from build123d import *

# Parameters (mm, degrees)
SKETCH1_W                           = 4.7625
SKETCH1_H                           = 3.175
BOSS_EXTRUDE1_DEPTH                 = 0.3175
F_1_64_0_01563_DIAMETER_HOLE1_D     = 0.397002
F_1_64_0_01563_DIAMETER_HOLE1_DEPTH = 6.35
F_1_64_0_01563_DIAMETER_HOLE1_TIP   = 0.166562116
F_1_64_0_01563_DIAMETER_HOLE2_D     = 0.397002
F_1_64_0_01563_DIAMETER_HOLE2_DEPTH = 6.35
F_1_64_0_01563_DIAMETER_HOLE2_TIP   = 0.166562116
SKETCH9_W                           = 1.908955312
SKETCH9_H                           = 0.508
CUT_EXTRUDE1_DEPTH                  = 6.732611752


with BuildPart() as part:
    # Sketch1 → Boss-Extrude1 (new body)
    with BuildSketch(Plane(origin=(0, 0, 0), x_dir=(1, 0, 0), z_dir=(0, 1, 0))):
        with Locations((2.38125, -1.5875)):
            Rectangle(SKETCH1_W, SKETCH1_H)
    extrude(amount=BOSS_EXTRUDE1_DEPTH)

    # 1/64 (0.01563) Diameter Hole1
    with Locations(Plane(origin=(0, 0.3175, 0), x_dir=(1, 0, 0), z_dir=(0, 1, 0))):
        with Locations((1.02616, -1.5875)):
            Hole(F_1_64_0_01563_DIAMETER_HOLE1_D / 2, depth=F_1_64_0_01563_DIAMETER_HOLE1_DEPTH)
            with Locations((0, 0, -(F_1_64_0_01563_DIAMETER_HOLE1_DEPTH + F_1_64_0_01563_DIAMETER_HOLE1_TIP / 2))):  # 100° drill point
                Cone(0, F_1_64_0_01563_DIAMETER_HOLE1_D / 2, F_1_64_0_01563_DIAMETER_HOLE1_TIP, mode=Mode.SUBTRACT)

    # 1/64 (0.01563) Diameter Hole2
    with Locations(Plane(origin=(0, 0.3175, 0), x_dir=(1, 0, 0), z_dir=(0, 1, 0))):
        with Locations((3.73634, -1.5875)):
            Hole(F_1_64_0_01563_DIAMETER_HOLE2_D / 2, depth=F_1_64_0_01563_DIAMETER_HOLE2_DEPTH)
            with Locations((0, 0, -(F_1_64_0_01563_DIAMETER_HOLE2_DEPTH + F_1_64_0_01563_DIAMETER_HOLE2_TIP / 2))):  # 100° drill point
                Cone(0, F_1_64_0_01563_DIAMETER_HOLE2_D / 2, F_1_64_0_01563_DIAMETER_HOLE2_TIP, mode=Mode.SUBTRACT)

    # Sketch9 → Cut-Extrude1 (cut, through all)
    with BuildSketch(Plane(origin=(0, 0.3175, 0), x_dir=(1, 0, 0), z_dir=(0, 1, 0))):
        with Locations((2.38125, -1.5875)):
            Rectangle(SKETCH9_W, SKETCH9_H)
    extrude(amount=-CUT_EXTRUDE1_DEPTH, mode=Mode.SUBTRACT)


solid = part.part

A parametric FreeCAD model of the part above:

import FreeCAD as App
import Part
import Sketcher

V = App.Vector
Q = App.Units.Quantity

doc = App.newDocument("Part")
body = doc.addObject("PartDesign::Body", "Body")

sketch1 = body.newObject("Sketcher::SketchObject", "Sketch")
sketch1.AttachmentSupport = (doc.getObject("XZ_Plane"), [""])
sketch1.MapMode = "FlatFace"
sketch1.addGeometry([
    Part.LineSegment(V(0, 0, 0), V(0, 3.175, 0)),
    Part.LineSegment(V(0, 3.175, 0), V(4.7625, 3.175, 0)),
    Part.LineSegment(V(4.7625, 3.175, 0), V(4.7625, 0, 0)),
    Part.LineSegment(V(4.7625, 0, 0), V(0, 0, 0)),
], False)
sketch1.addConstraint([
    Sketcher.Constraint("Coincident", 0, 2, 1, 1),
    Sketcher.Constraint("Coincident", 1, 2, 2, 1),
    Sketcher.Constraint("Coincident", 2, 2, 3, 1),
    Sketcher.Constraint("Coincident", 3, 2, 0, 1),
    Sketcher.Constraint("Vertical", 0),
    Sketcher.Constraint("Horizontal", 1),
    Sketcher.Constraint("Vertical", 2),
    Sketcher.Constraint("Horizontal", 3),
    Sketcher.Constraint("Coincident", 3, 2, -1, 1),
    Sketcher.Constraint("DistanceX", 1, 1, 1, 2, Q("0.1875 in")),
    Sketcher.Constraint("DistanceY", 0, 1, 0, 2, Q("0.125 in")),
])
pad1 = body.newObject("PartDesign::Pad", "Pad")
pad1.Profile = sketch1
pad1.Length = Q("0.0125 in")
pad1.Reversed = True

sketch2 = body.newObject("Sketcher::SketchObject", "Sketch001")
sketch2.AttachmentSupport = (doc.getObject("XZ_Plane"), [""])
sketch2.MapMode = "FlatFace"
sketch2.AttachmentOffset = App.Placement(V(0, 0, -0.0125 * 25.4), App.Rotation())
sketch2.addGeometry(Part.Circle(V(1.02616, 1.5875, 0), V(0, 0, 1), 0.198501), False)
sketch2.addConstraint([
    Sketcher.Constraint("DistanceY", -1, 1, 0, 3, Q("0.0625 in")),
    Sketcher.Constraint("Diameter", 0, 0.397002),
    Sketcher.Constraint("DistanceX", -1, 1, 0, 3, Q("0.0404 in")),
])
doc.recompute()
hole = body.newObject("PartDesign::Hole", "Hole")
hole.Profile = sketch2
hole.ThreadType = "None"
hole.Diameter = 0.397002
hole.DepthType = "Dimension"
hole.Depth = Q("0.25 in")
hole.DrillPoint = "Angled"
hole.DrillPointAngle = 100
hole.Reversed = True

sketch3 = body.newObject("Sketcher::SketchObject", "Sketch002")
sketch3.AttachmentSupport = (doc.getObject("XZ_Plane"), [""])
sketch3.MapMode = "FlatFace"
sketch3.AttachmentOffset = App.Placement(V(0, 0, -0.0125 * 25.4), App.Rotation())
sketch3.addGeometry(Part.Circle(V(3.73634, 1.5875, 0), V(0, 0, 1), 0.198501), False)
sketch3.addConstraint([
    Sketcher.Constraint("DistanceY", -1, 1, 0, 3, Q("0.0625 in")),
    Sketcher.Constraint("Diameter", 0, 0.397002),
    Sketcher.Constraint("DistanceX", -1, 1, 0, 3, Q("0.1471 in")),
])
doc.recompute()
hole2 = body.newObject("PartDesign::Hole", "Hole001")
hole2.Profile = sketch3
hole2.ThreadType = "None"
hole2.Diameter = 0.397002
hole2.DepthType = "Dimension"
hole2.Depth = Q("0.25 in")
hole2.DrillPoint = "Angled"
hole2.DrillPointAngle = 100
hole2.Reversed = True

sketch4 = body.newObject("Sketcher::SketchObject", "Sketch003")
sketch4.AttachmentSupport = (doc.getObject("XZ_Plane"), [""])
sketch4.MapMode = "FlatFace"
sketch4.AttachmentOffset = App.Placement(V(0, 0, -0.0125 * 25.4), App.Rotation())
sketch4.addGeometry([
    Part.LineSegment(V(1.426772, 1.3335, 0), V(1.426772, 1.8415, 0)),
    Part.LineSegment(V(1.426772, 1.8415, 0), V(3.335728, 1.8415, 0)),
    Part.LineSegment(V(3.335728, 1.8415, 0), V(3.335728, 1.3335, 0)),
    Part.LineSegment(V(3.335728, 1.3335, 0), V(1.426772, 1.3335, 0)),
], False)
sketch4.addConstraint([
    Sketcher.Constraint("Coincident", 0, 2, 1, 1),
    Sketcher.Constraint("Coincident", 1, 2, 2, 1),
    Sketcher.Constraint("Coincident", 2, 2, 3, 1),
    Sketcher.Constraint("Coincident", 3, 2, 0, 1),
    Sketcher.Constraint("Vertical", 0),
    Sketcher.Constraint("Horizontal", 1),
    Sketcher.Constraint("Vertical", 2),
    Sketcher.Constraint("Horizontal", 3),
    Sketcher.Constraint("DistanceY", 0, 1, 0, 2, Q("0.02 in")),
    Sketcher.Constraint("DistanceY", -1, 1, 0, 2, Q("0.0725 in")),
    Sketcher.Constraint("DistanceX", 1, 1, 1, 2, 1.908955),
    Sketcher.Constraint("DistanceX", -1, 1, 0, 2, 1.426772),
])
pocket1 = body.newObject("PartDesign::Pocket", "Pocket")
pocket1.Profile = sketch4
pocket1.Type = "ThroughAll"
pocket1.Reversed = True

doc.recompute()
